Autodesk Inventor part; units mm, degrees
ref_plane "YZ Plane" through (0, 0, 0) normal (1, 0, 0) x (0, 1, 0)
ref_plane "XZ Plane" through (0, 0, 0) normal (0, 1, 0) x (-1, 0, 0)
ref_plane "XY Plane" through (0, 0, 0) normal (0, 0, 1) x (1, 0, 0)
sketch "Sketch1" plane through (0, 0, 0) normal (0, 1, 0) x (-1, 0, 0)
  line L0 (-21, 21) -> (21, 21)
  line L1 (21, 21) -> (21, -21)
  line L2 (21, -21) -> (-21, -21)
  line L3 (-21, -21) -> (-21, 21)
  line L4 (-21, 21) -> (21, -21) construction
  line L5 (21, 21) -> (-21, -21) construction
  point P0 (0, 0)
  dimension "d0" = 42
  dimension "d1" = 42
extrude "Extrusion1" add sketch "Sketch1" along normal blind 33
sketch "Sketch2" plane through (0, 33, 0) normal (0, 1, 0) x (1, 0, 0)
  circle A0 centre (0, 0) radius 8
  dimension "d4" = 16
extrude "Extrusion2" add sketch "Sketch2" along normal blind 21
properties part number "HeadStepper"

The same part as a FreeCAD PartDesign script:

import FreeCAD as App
import Part
import Sketcher


def add_polygon(sketch, points):
    """Adds a closed chain of lines whose ends are joined by coincident constraints."""
    first, n = sketch.GeometryCount, len(points)
    for a, b in zip(points, points[1:] + points[:1]):
        sketch.addGeometry(Part.LineSegment(App.Vector(*a, 0), App.Vector(*b, 0)), False)
    for i in range(n):
        sketch.addConstraint(Sketcher.Constraint("Coincident", first + i, 2, first + (i + 1) % n, 1))

doc = App.newDocument("Part")
body = doc.addObject("PartDesign::Body", "Body")

# Sketch on XZ plane
sketch1 = body.newObject("Sketcher::SketchObject", "Sketch")
sketch1.AttachmentSupport = (doc.getObject("XZ_Plane"), [""])
sketch1.MapMode = "FlatFace"
add_polygon(sketch1, [(-21, 21), (21, 21), (21, -21), (-21, -21)])  # lines 0-3
sketch1.addConstraint([
    Sketcher.Constraint("Horizontal", 0),
    Sketcher.Constraint("Vertical", 1),
    Sketcher.Constraint("Horizontal", 2),
    Sketcher.Constraint("Vertical", 3),
    Sketcher.Constraint("Symmetric", 0, 2, 2, 2, -1, 1),
    Sketcher.Constraint("Equal", 2, 1),
    Sketcher.Constraint("DistanceX", 0, 1, 0, 2, 42.0),
])
pad1 = body.newObject("PartDesign::Pad", "Pad")
pad1.Profile = sketch1
pad1.Length = 33
pad1.Reversed = True

# Sketch on XZ plane
sketch2 = body.newObject("Sketcher::SketchObject", "Sketch001")
sketch2.AttachmentSupport = (doc.getObject("XZ_Plane"), [""])
sketch2.MapMode = "FlatFace"
sketch2.AttachmentOffset = App.Placement(App.Vector(0, 0, -33), App.Rotation())
sketch2.addGeometry(Part.Circle(App.Vector(0, 0, 0), App.Vector(0, 0, 1), 8), False)
sketch2.addConstraint([
    Sketcher.Constraint("Coincident", 0, 3, -1, 1),
    Sketcher.Constraint("Diameter", 0, 16.0),
])
pad2 = body.newObject("PartDesign::Pad", "Pad001")
pad2.Profile = sketch2
pad2.Length = 21
pad2.Reversed = True

doc.recompute()
